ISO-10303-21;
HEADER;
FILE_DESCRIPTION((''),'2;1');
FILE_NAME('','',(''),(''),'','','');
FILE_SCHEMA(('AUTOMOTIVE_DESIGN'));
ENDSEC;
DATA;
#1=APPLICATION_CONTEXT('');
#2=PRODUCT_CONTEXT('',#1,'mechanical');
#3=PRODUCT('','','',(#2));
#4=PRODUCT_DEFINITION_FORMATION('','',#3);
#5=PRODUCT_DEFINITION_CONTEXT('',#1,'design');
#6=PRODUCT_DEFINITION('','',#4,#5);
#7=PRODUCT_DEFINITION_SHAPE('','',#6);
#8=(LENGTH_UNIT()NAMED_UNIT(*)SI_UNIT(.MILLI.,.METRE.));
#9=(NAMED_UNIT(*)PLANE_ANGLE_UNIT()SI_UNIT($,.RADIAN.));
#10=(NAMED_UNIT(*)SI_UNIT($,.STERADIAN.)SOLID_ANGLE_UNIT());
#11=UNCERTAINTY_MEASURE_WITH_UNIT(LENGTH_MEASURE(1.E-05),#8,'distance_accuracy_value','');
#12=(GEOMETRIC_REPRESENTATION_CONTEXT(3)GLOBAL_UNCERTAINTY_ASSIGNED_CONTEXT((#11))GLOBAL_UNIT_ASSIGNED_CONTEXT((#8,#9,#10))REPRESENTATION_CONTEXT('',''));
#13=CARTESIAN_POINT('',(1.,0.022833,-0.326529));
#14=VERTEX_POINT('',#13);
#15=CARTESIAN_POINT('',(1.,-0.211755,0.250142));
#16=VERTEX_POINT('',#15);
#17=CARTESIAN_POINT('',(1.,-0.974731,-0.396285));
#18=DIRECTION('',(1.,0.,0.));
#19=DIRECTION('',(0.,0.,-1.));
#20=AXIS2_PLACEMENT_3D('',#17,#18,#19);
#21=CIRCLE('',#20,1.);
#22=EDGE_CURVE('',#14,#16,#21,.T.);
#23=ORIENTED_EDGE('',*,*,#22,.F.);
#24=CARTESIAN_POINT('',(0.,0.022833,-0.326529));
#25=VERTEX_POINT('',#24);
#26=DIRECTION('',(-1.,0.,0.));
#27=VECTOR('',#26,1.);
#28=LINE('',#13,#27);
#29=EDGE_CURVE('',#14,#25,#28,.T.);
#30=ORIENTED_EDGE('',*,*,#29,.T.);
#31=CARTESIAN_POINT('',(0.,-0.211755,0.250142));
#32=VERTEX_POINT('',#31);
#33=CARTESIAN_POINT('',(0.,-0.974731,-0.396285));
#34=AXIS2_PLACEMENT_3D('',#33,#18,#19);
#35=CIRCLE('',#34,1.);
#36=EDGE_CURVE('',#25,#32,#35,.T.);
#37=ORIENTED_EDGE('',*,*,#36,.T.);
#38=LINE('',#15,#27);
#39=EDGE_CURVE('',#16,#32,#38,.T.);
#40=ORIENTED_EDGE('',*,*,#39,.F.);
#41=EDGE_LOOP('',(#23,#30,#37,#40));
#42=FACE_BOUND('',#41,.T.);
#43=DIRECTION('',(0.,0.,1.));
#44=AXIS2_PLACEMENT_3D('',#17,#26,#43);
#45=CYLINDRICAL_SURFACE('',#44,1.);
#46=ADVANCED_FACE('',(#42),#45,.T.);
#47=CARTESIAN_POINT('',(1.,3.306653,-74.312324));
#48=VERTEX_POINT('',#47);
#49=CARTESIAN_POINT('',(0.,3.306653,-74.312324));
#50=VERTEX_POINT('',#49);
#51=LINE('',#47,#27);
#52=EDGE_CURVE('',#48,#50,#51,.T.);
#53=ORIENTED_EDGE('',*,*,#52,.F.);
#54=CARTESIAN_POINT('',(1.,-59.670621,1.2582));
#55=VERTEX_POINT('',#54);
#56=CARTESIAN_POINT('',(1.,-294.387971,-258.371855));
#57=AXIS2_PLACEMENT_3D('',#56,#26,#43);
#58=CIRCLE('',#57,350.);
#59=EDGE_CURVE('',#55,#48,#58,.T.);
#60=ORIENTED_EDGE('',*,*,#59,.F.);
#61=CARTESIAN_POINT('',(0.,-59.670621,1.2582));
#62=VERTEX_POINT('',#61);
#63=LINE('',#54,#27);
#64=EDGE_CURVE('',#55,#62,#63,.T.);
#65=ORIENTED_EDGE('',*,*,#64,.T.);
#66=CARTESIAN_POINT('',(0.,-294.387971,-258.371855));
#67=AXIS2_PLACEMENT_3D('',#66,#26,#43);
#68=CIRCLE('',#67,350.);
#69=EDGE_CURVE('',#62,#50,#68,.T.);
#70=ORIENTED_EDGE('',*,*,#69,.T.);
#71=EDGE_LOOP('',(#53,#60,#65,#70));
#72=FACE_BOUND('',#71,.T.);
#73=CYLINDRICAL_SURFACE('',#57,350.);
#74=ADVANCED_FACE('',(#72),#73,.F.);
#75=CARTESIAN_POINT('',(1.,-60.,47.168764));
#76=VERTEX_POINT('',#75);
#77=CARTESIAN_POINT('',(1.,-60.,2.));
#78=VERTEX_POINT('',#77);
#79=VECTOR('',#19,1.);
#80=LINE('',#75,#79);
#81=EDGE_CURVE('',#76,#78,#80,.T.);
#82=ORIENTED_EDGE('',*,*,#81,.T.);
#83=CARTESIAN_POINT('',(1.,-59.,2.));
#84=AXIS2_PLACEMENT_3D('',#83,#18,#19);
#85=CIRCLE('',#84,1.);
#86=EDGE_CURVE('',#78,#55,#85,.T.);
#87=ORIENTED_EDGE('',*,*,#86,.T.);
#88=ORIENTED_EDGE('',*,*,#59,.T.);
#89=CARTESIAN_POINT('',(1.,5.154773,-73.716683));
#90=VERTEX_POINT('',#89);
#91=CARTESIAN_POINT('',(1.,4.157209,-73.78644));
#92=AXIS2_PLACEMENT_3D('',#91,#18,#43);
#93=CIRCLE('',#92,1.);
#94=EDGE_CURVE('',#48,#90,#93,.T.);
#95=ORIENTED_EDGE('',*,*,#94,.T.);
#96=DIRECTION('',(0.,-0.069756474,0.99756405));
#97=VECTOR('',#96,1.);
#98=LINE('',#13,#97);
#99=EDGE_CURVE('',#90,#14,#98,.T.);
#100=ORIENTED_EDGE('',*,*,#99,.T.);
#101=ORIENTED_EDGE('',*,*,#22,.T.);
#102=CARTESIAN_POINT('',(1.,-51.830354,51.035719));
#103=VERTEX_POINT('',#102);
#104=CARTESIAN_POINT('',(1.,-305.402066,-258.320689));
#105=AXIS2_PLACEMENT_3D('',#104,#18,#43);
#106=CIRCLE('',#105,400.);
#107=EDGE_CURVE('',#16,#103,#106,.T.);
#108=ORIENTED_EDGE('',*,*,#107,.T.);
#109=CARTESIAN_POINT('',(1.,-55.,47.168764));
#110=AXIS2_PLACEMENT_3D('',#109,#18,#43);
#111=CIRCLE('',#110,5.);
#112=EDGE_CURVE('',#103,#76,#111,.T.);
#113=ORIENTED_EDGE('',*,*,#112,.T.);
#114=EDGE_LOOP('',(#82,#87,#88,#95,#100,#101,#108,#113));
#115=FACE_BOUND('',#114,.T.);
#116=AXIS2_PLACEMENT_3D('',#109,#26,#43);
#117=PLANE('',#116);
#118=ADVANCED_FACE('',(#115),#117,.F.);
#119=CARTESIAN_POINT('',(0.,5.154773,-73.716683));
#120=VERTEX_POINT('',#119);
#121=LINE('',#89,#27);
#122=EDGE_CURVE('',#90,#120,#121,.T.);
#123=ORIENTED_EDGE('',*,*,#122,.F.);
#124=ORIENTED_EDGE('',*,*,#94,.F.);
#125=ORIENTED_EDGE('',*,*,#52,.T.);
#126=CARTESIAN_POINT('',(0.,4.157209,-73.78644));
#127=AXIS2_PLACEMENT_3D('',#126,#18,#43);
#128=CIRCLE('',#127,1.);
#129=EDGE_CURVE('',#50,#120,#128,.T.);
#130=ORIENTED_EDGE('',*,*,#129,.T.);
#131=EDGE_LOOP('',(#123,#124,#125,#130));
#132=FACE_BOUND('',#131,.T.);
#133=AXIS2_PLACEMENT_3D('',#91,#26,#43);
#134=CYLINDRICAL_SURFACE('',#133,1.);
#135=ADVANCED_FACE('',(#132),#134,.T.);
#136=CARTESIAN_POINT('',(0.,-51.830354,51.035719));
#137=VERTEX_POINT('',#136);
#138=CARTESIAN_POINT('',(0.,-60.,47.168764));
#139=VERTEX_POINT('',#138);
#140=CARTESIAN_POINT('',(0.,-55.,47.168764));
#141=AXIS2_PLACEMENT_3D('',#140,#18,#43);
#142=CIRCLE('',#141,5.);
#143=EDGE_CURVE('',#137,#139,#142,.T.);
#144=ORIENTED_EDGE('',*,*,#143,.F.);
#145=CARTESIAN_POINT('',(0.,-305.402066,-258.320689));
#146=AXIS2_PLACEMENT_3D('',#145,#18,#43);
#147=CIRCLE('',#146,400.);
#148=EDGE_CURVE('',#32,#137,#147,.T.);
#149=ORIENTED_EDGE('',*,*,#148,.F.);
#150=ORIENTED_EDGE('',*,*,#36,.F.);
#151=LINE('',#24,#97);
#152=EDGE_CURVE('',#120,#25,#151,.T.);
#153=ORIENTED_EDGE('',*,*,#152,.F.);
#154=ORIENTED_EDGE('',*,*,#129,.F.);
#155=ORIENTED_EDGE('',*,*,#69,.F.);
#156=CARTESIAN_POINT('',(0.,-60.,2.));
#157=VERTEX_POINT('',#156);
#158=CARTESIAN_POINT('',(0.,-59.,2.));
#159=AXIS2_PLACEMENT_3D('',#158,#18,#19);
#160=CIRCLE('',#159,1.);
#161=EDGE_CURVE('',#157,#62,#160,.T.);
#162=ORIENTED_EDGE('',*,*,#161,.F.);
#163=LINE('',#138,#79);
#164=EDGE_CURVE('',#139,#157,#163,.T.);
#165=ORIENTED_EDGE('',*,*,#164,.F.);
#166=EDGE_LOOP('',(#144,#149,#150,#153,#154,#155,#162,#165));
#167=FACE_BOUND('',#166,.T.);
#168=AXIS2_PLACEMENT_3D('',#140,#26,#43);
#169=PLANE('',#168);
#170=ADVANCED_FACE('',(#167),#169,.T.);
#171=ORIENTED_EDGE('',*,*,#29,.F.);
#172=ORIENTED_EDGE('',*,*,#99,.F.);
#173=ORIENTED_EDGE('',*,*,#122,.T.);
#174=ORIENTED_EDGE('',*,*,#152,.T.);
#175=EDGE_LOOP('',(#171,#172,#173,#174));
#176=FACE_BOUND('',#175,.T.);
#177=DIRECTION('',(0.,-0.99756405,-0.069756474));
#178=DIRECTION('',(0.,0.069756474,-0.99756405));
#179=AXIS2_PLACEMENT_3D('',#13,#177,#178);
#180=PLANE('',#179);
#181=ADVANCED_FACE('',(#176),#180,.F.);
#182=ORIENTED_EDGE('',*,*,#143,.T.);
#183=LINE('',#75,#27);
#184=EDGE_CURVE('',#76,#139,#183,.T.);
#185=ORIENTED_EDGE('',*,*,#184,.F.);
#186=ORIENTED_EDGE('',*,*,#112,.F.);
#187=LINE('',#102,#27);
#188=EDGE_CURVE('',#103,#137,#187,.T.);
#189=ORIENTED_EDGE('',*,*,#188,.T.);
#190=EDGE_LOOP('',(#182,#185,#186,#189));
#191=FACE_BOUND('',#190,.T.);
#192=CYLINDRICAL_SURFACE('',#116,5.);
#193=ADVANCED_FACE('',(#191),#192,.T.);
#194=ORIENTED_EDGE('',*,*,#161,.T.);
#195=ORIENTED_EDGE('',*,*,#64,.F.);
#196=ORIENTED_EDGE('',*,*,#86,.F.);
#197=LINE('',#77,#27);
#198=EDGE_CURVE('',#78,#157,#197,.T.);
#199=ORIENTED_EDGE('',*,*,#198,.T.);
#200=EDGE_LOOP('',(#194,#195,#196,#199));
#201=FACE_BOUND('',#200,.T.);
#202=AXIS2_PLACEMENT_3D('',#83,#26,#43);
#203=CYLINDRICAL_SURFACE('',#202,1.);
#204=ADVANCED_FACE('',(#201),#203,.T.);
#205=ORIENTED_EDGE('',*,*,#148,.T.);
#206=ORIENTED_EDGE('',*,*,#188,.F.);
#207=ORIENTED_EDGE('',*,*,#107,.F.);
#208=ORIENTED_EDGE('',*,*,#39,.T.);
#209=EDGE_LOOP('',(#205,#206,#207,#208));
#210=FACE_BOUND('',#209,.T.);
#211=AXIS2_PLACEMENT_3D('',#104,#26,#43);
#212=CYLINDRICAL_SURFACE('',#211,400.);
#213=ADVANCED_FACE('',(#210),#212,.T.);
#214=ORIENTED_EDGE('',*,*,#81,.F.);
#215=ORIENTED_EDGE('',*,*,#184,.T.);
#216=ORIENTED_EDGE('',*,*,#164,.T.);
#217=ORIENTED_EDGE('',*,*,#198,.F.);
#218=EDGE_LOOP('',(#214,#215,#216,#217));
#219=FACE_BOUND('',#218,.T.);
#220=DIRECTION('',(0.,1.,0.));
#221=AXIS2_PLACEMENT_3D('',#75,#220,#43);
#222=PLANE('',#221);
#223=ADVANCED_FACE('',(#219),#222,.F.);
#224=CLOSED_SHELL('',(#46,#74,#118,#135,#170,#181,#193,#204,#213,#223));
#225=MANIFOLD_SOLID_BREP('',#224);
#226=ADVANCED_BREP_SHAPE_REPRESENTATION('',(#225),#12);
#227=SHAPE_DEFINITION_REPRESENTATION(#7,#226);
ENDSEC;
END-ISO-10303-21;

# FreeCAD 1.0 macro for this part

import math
import FreeCAD as App
import Part
import Sketcher
Q = App.Units.Quantity

doc = App.newDocument("Part")
body = doc.addObject("PartDesign::Body", "Body")

sketch1 = body.newObject("Sketcher::SketchObject", "Sketch")
sketch1.AttachmentSupport = (doc.getObject("YZ_Plane"), [""])
sketch1.MapMode = "FlatFace"
sketch1.addGeometry([
    Part.LineSegment(App.Vector(5.2, -73.7, 0), App.Vector(0, -0.3, 0)),
    Part.ArcOfCircle(Part.Circle(App.Vector(-1, -0.4, 0), App.Vector(0, 0, 1), 1), math.radians(4), math.radians(40)),
    Part.ArcOfCircle(Part.Circle(App.Vector(-305.4, -258.3, 0), App.Vector(0, 0, 1), 400), math.radians(40.27), math.radians(50.66)),
    Part.ArcOfCircle(Part.Circle(App.Vector(-55, 47.2, 0), App.Vector(0, 0, 1), 5), math.radians(51), math.radians(180)),
    Part.LineSegment(App.Vector(-60, 47.2, 0), App.Vector(-60, 2, 0)),
    Part.ArcOfCircle(Part.Circle(App.Vector(-59, 2, 0), App.Vector(0, 0, 1), 1), math.radians(180), math.radians(228)),
    Part.ArcOfCircle(Part.Circle(App.Vector(-294.4, -258.4, 0), App.Vector(0, 0, 1), 350), math.radians(31.73), math.radians(47.88)),
    Part.ArcOfCircle(Part.Circle(App.Vector(4.2, -73.8, 0), App.Vector(0, 0, 1), 1), math.radians(-148), math.radians(4)),
], False)
sketch1.addConstraint([
    Sketcher.Constraint("Tangent", 0, 2, 1, 1),
    Sketcher.Constraint("Tangent", 1, 2, 2, 1),
    Sketcher.Constraint("Tangent", 2, 2, 3, 1),
    Sketcher.Constraint("Tangent", 3, 2, 4, 1),
    Sketcher.Constraint("Tangent", 4, 2, 5, 1),
    Sketcher.Constraint("Tangent", 5, 2, 6, 2),
    Sketcher.Constraint("Tangent", 6, 1, 7, 1),
    Sketcher.Constraint("Tangent", 7, 2, 0, 1),
    Sketcher.Constraint("Vertical", 4),
    Sketcher.Constraint("Equal", 1, 5),
    Sketcher.Constraint("Equal", 5, 7),
    Sketcher.Constraint("Radius", 1, Q("1 mm")),
    Sketcher.Constraint("Radius", 2, Q("400 mm")),
    Sketcher.Constraint("Radius", 3, Q("5 mm")),
    Sketcher.Constraint("Radius", 6, Q("350 mm")),
    Sketcher.Constraint("Angle", 0, Q("94 deg")),
    Sketcher.Constraint("DistanceX", 3, 3, -1, 1, Q("55 mm")),
    Sketcher.Constraint("DistanceY", -1, 1, 5, 3, Q("2 mm")),
    Sketcher.Constraint("DistanceY", 4, 2, 4, 1, Q("45.168764 mm")),
    Sketcher.Constraint("DistanceX", 1, 3, -1, 1, Q("0.974731 mm")),
    Sketcher.Constraint("DistanceY", 2, 3, -1, 1, Q("258.320689 mm")),
    Sketcher.Constraint("DistanceX", 6, 3, -1, 1, Q("294.387971 mm")),
])
pad1 = body.newObject("PartDesign::Pad", "Pad")
pad1.Profile = sketch1
pad1.Length = 1

doc.recompute()
